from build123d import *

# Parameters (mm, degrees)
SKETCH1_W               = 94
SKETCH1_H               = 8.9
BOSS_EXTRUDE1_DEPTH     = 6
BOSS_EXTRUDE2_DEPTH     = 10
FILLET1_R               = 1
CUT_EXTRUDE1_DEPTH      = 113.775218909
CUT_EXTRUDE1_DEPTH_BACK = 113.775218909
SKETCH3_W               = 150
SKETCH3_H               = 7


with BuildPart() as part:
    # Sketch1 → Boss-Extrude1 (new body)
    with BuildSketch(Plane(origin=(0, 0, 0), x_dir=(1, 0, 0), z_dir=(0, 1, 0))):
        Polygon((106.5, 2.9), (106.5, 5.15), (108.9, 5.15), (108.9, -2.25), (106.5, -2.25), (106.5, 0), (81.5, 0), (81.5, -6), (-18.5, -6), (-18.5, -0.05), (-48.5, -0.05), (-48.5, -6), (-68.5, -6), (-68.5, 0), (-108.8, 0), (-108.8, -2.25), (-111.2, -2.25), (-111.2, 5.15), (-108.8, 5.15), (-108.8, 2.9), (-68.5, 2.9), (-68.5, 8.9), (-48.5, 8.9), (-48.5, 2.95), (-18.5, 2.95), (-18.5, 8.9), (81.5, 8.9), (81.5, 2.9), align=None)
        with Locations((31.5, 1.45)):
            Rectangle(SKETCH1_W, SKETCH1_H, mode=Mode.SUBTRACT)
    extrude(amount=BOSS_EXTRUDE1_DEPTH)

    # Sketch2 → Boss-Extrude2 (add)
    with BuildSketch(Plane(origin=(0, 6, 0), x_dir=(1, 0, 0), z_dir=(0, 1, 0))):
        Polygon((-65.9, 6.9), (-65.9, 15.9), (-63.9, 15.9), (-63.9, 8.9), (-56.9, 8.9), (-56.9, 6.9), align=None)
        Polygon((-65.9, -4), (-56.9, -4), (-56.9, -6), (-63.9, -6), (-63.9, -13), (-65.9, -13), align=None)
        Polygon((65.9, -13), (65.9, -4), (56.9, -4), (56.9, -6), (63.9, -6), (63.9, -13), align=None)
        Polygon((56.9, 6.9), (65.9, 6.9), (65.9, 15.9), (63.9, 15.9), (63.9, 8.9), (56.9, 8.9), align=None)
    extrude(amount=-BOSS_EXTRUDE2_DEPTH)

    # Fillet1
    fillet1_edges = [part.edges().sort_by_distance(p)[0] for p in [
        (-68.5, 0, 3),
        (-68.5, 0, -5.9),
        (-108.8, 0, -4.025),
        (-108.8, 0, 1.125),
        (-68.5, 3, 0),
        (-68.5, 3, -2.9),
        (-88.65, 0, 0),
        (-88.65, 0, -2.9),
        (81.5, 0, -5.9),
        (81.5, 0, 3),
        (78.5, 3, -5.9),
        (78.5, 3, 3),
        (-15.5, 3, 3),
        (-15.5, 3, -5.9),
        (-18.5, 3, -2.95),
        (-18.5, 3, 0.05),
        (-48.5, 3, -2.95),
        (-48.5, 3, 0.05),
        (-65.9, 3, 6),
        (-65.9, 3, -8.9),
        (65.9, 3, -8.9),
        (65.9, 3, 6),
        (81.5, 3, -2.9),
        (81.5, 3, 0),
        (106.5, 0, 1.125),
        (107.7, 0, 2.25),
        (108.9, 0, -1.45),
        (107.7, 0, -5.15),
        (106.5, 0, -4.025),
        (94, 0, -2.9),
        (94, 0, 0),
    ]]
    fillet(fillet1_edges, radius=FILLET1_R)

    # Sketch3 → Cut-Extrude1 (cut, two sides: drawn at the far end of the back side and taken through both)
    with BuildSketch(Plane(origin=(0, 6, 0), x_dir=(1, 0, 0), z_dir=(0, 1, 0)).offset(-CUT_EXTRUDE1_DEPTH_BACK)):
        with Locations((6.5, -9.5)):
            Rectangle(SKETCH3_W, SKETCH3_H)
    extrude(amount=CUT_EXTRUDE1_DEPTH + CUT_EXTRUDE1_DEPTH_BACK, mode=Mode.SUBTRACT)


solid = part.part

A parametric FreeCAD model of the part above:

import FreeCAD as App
import Part
import Sketcher
from FreeCAD import Vector


def edges_at(feature, points):
    """Names of the edges that pass closest to the given points."""
    edges = feature.Shape.Edges
    near = lambda p: min(range(len(edges)), key=lambda i: edges[i].distToShape(Part.Vertex(*p))[0])
    return sorted({f"Edge{near(p) + 1}" for p in points})


def add_polygon(sketch, points):
    """Adds a closed chain of lines whose ends are joined by coincident constraints."""
    first, n = sketch.GeometryCount, len(points)
    for a, b in zip(points, points[1:] + points[:1]):
        sketch.addGeometry(Part.LineSegment(App.Vector(*a, 0), App.Vector(*b, 0)), False)
    for i in range(n):
        sketch.addConstraint(Sketcher.Constraint("Coincident", first + i, 2, first + (i + 1) % n, 1))

doc = App.newDocument("Part")
body = doc.addObject("PartDesign::Body", "Body")

# Sketch on XZ plane
sketch1 = body.newObject("Sketcher::SketchObject", "Sketch")
sketch1.AttachmentSupport = (doc.getObject("XZ_Plane"), [""])
sketch1.MapMode = "FlatFace"
add_polygon(sketch1, [(106.5, -5.2), (106.5, -2.9), (81.5, -2.9), (81.5, -8.9), (-18.5, -8.9), (-18.5, -3), (-48.5, -3), (-48.5, -8.9), (-68.5, -8.9), (-68.5, -2.9), (-108.8, -2.9), (-108.8, -5.2), (-111.2, -5.2), (-111.2, 2.2), (-108.8, 2.2), (-108.8, 0), (-68.5, 0), (-68.5, 6), (-48.5, 6), (-48.5, 0.1), (-18.5, 0.1), (-18.5, 6), (81.5, 6), (81.5, 0), (106.5, 0), (106.5, 2.2), (108.9, 2.2), (108.9, -5.2)])  # lines 0-27
add_polygon(sketch1, [(-15.5, 3), (-15.5, -5.9), (78.5, -5.9), (78.5, 3)])  # lines 28-31
sketch1.addConstraint(Sketcher.Constraint("Vertical", 0))
sketch1.addConstraint(Sketcher.Constraint("Horizontal", 1))
sketch1.addConstraint(Sketcher.Constraint("Vertical", 2))
sketch1.addConstraint(Sketcher.Constraint("Horizontal", 3))
sketch1.addConstraint(Sketcher.Constraint("Vertical", 4))
sketch1.addConstraint(Sketcher.Constraint("Horizontal", 5))
sketch1.addConstraint(Sketcher.Constraint("Vertical", 6))
sketch1.addConstraint(Sketcher.Constraint("Horizontal", 7))
sketch1.addConstraint(Sketcher.Constraint("Vertical", 8))
sketch1.addConstraint(Sketcher.Constraint("Horizontal", 9))
sketch1.addConstraint(Sketcher.Constraint("Vertical", 10))
sketch1.addConstraint(Sketcher.Constraint("Horizontal", 11))
sketch1.addConstraint(Sketcher.Constraint("Vertical", 12))
sketch1.addConstraint(Sketcher.Constraint("Horizontal", 13))
sketch1.addConstraint(Sketcher.Constraint("Vertical", 14))
sketch1.addConstraint(Sketcher.Constraint("Horizontal", 15))
sketch1.addConstraint(Sketcher.Constraint("Vertical", 16))
sketch1.addConstraint(Sketcher.Constraint("Horizontal", 17))
sketch1.addConstraint(Sketcher.Constraint("Vertical", 18))
sketch1.addConstraint(Sketcher.Constraint("Horizontal", 19))
sketch1.addConstraint(Sketcher.Constraint("Vertical", 20))
sketch1.addConstraint(Sketcher.Constraint("Horizontal", 21))
sketch1.addConstraint(Sketcher.Constraint("Vertical", 22))
sketch1.addConstraint(Sketcher.Constraint("Horizontal", 23))
sketch1.addConstraint(Sketcher.Constraint("Vertical", 24))
sketch1.addConstraint(Sketcher.Constraint("Horizontal", 25))
sketch1.addConstraint(Sketcher.Constraint("Vertical", 26))
sketch1.addConstraint(Sketcher.Constraint("Horizontal", 27))
sketch1.addConstraint(Sketcher.Constraint("Vertical", 28))
sketch1.addConstraint(Sketcher.Constraint("Horizontal", 29))
sketch1.addConstraint(Sketcher.Constraint("Vertical", 30))
sketch1.addConstraint(Sketcher.Constraint("Horizontal", 31))
sketch1.addConstraint(Sketcher.Constraint("PointOnObject", 14, 2, -1))
sketch1.addConstraint(Sketcher.Constraint("PointOnObject", 22, 2, -1))
sketch1.addConstraint(Sketcher.Constraint("Horizontal", 3, 2, 6, 2))
sketch1.addConstraint(Sketcher.Constraint("Horizontal", 1, 2, 8, 2))
sketch1.addConstraint(Sketcher.Constraint("Horizontal", 17, 2, 20, 2))
sketch1.addConstraint(Sketcher.Constraint("Horizontal", 13, 2, 24, 2))
sketch1.addConstraint(Sketcher.Constraint("Horizontal", 11, 2, 26, 2))
sketch1.addConstraint(Sketcher.Constraint("Vertical", 10, 2, 13, 2))
sketch1.addConstraint(Sketcher.Constraint("Vertical", 8, 2, 15, 2))
sketch1.addConstraint(Sketcher.Constraint("Vertical", 6, 2, 17, 2))
sketch1.addConstraint(Sketcher.Constraint("Vertical", 4, 2, 19, 2))
sketch1.addConstraint(Sketcher.Constraint("Vertical", 2, 2, 21, 2))
sketch1.addConstraint(Sketcher.Constraint("Vertical", 0, 2, 23, 2))
sketch1.addConstraint(Sketcher.Constraint("Equal", 13, 25))
sketch1.addConstraint(Sketcher.Constraint("Equal", 10, 14))
sketch1.addConstraint(Sketcher.Constraint("Equal", 8, 16))
sketch1.addConstraint(Sketcher.Constraint("Equal", 6, 18))
sketch1.addConstraint(Sketcher.Constraint("DistanceX", 1, 2, 1, 1, 25.0))
sketch1.addConstraint(Sketcher.Constraint("DistanceX", 3, 2, 3, 1, 100.0))
sketch1.addConstraint(Sketcher.Constraint("DistanceX", 5, 2, 5, 1, 30.0))
sketch1.addConstraint(Sketcher.Constraint("DistanceX", 7, 2, 7, 1, 20.0))
sketch1.addConstraint(Sketcher.Constraint("DistanceX", 29, 1, 29, 2, 94.0))
sketch1.addConstraint(Sketcher.Constraint("DistanceY", 2, 2, 2, 1, 6.0))
sketch1.addConstraint(Sketcher.Constraint("DistanceX", 9, 2, 9, 1, 40.3))
sketch1.addConstraint(Sketcher.Constraint("DistanceX", 11, 2, 11, 1, 2.4))
sketch1.addConstraint(Sketcher.Constraint("DistanceY", 12, 1, 12, 2, 7.4))
sketch1.addConstraint(Sketcher.Constraint("DistanceY", 28, 2, 28, 1, 8.9))
sketch1.addConstraint(Sketcher.Constraint("DistanceY", -1, 1, 30, 2, 3.0))
sketch1.addConstraint(Sketcher.Constraint("DistanceY", 5, 2, 18, 2, 3.0))
sketch1.addConstraint(Sketcher.Constraint("DistanceX", 4, 2, 28, 2, 3.0))
sketch1.addConstraint(Sketcher.Constraint("DistanceY", 3, 2, 28, 2, 3.0))
sketch1.addConstraint(Sketcher.Constraint("DistanceX", -1, 1, 0, 2, 106.5))
pad1 = body.newObject("PartDesign::Pad", "Pad")
pad1.Profile = sketch1
pad1.Length = 6
pad1.Reversed = True

# Sketch on XZ plane
sketch2 = body.newObject("Sketcher::SketchObject", "Sketch001")
sketch2.AttachmentSupport = (doc.getObject("XZ_Plane"), [""])
sketch2.MapMode = "FlatFace"
sketch2.AttachmentOffset = App.Placement(Vector(0, 0, -6), App.Rotation())
add_polygon(sketch2, [(-65.9, -15.9), (-65.9, -6.9), (-56.9, -6.9), (-56.9, -8.9), (-63.9, -8.9), (-63.9, -15.9)])  # lines 0-5
add_polygon(sketch2, [(-56.9, 4), (-65.9, 4), (-65.9, 13), (-63.9, 13), (-63.9, 6), (-56.9, 6)])  # lines 6-11
add_polygon(sketch2, [(65.9, 13), (65.9, 4), (56.9, 4), (56.9, 6), (63.9, 6), (63.9, 13)])  # lines 12-17
add_polygon(sketch2, [(56.9, -6.9), (65.9, -6.9), (65.9, -15.9), (63.9, -15.9), (63.9, -8.9), (56.9, -8.9)])  # lines 18-23
sketch2.addConstraint(Sketcher.Constraint("Vertical", 0))
sketch2.addConstraint(Sketcher.Constraint("Horizontal", 1))
sketch2.addConstraint(Sketcher.Constraint("Vertical", 2))
sketch2.addConstraint(Sketcher.Constraint("Horizontal", 3))
sketch2.addConstraint(Sketcher.Constraint("Vertical", 4))
sketch2.addConstraint(Sketcher.Constraint("Horizontal", 5))
sketch2.addConstraint(Sketcher.Constraint("Horizontal", 6))
sketch2.addConstraint(Sketcher.Constraint("Vertical", 7))
sketch2.addConstraint(Sketcher.Constraint("Horizontal", 8))
sketch2.addConstraint(Sketcher.Constraint("Vertical", 9))
sketch2.addConstraint(Sketcher.Constraint("Horizontal", 10))
sketch2.addConstraint(Sketcher.Constraint("Vertical", 11))
sketch2.addConstraint(Sketcher.Constraint("Vertical", 12))
sketch2.addConstraint(Sketcher.Constraint("Horizontal", 13))
sketch2.addConstraint(Sketcher.Constraint("Vertical", 14))
sketch2.addConstraint(Sketcher.Constraint("Horizontal", 15))
sketch2.addConstraint(Sketcher.Constraint("Vertical", 16))
sketch2.addConstraint(Sketcher.Constraint("Horizontal", 17))
sketch2.addConstraint(Sketcher.Constraint("Horizontal", 18))
sketch2.addConstraint(Sketcher.Constraint("Vertical", 19))
sketch2.addConstraint(Sketcher.Constraint("Horizontal", 20))
sketch2.addConstraint(Sketcher.Constraint("Vertical", 21))
sketch2.addConstraint(Sketcher.Constraint("Horizontal", 22))
sketch2.addConstraint(Sketcher.Constraint("Vertical", 23))
sketch2.addConstraint(Sketcher.Constraint("Symmetric", 6, 2, 12, 2, -2))
sketch2.addConstraint(Sketcher.Constraint("Symmetric", 10, 2, 14, 2, -2))
sketch2.addConstraint(Sketcher.Constraint("Symmetric", 8, 2, 16, 2, -2))
sketch2.addConstraint(Sketcher.Constraint("Symmetric", 0, 2, 18, 2, -2))
sketch2.addConstraint(Sketcher.Constraint("Symmetric", 4, 2, 20, 2, -2))
sketch2.addConstraint(Sketcher.Constraint("Symmetric", 2, 2, 22, 2, -2))
sketch2.addConstraint(Sketcher.Constraint("Vertical", 5, 2, 6, 2))
sketch2.addConstraint(Sketcher.Constraint("Vertical", 4, 2, 8, 2))
sketch2.addConstraint(Sketcher.Constraint("Vertical", 2, 2, 10, 2))
sketch2.addConstraint(Sketcher.Constraint("Equal", 18, 0))
sketch2.addConstraint(Sketcher.Constraint("Equal", 20, 2))
sketch2.addConstraint(Sketcher.Constraint("Equal", 0, 7))
sketch2.addConstraint(Sketcher.Constraint("Equal", 4, 9))
sketch2.addConstraint(Sketcher.Constraint("DistanceX", 1, 1, 1, 2, 9.0))
sketch2.addConstraint(Sketcher.Constraint("DistanceX", 3, 2, 3, 1, 7.0))
sketch2.addConstraint(Sketcher.Constraint("DistanceY", -1, 1, 6, 2, 4.0))
sketch2.addConstraint(Sketcher.Constraint("DistanceX", 0, 2, -1, 1, 65.9))
sketch2.addConstraint(Sketcher.Constraint("DistanceY", 0, 2, -1, 1, 6.9))
pad2 = body.newObject("PartDesign::Pad", "Pad001")
pad2.Profile = sketch2
pad2.Length = 10
doc.recompute()

fillet = body.newObject("PartDesign::Fillet", "Fillet")
fillet.Base = (pad2, edges_at(pad2, [
    (-68.5, 0, 3),
    (-68.5, 0, -5.9),
    (-108.8, 0, -4.025),
    (-108.8, 0, 1.125),
    (-68.5, 3, 0),
    (-68.5, 3, -2.9),
    (-88.65, 0, 0),
    (-88.65, 0, -2.9),
    (81.5, 0, -5.9),
    (81.5, 0, 3),
    (78.5, 3, -5.9),
    (78.5, 3, 3),
    (-15.5, 3, 3),
    (-15.5, 3, -5.9),
    (-18.5, 3, -2.95),
    (-18.5, 3, 0.05),
    (-48.5, 3, -2.95),
    (-48.5, 3, 0.05),
    (-65.9, 3, 6),
    (-65.9, 3, -8.9),
    (65.9, 3, -8.9),
    (65.9, 3, 6),
    (81.5, 3, -2.9),
    (81.5, 3, 0),
    (106.5, 0, 1.125),
    (107.7, 0, 2.25),
    (108.9, 0, -1.45),
    (107.7, 0, -5.15),
    (106.5, 0, -4.025),
    (94, 0, -2.9),
    (94, 0, 0),
]))
fillet.Radius = 1

# Sketch on XZ plane
sketch3 = body.newObject("Sketcher::SketchObject", "Sketch002")
sketch3.AttachmentSupport = (doc.getObject("XZ_Plane"), [""])
sketch3.MapMode = "FlatFace"
sketch3.AttachmentOffset = App.Placement(Vector(0, 0, -6), App.Rotation())
add_polygon(sketch3, [(-68, 6), (-68, 13), (82, 13), (82, 6)])  # lines 0-3
sketch3.addConstraint(Sketcher.Constraint("Vertical", 0))
sketch3.addConstraint(Sketcher.Constraint("Horizontal", 1))
sketch3.addConstraint(Sketcher.Constraint("Vertical", 2))
sketch3.addConstraint(Sketcher.Constraint("Horizontal", 3))
sketch3.addConstraint(Sketcher.Constraint("DistanceX", 1, 1, 1, 2, 150.0))
sketch3.addConstraint(Sketcher.Constraint("DistanceY", 0, 1, 0, 2, 7.0))
sketch3.addConstraint(Sketcher.Constraint("DistanceY", -1, 1, 0, 2, 13.0))
sketch3.addConstraint(Sketcher.Constraint("DistanceX", 0, 2, -1, 1, 68.5))
pocket1 = body.newObject("PartDesign::Pocket", "Pocket")
pocket1.Profile = sketch3
pocket1.Type = "ThroughAll"
pocket1.Midplane = True

doc.recompute()
